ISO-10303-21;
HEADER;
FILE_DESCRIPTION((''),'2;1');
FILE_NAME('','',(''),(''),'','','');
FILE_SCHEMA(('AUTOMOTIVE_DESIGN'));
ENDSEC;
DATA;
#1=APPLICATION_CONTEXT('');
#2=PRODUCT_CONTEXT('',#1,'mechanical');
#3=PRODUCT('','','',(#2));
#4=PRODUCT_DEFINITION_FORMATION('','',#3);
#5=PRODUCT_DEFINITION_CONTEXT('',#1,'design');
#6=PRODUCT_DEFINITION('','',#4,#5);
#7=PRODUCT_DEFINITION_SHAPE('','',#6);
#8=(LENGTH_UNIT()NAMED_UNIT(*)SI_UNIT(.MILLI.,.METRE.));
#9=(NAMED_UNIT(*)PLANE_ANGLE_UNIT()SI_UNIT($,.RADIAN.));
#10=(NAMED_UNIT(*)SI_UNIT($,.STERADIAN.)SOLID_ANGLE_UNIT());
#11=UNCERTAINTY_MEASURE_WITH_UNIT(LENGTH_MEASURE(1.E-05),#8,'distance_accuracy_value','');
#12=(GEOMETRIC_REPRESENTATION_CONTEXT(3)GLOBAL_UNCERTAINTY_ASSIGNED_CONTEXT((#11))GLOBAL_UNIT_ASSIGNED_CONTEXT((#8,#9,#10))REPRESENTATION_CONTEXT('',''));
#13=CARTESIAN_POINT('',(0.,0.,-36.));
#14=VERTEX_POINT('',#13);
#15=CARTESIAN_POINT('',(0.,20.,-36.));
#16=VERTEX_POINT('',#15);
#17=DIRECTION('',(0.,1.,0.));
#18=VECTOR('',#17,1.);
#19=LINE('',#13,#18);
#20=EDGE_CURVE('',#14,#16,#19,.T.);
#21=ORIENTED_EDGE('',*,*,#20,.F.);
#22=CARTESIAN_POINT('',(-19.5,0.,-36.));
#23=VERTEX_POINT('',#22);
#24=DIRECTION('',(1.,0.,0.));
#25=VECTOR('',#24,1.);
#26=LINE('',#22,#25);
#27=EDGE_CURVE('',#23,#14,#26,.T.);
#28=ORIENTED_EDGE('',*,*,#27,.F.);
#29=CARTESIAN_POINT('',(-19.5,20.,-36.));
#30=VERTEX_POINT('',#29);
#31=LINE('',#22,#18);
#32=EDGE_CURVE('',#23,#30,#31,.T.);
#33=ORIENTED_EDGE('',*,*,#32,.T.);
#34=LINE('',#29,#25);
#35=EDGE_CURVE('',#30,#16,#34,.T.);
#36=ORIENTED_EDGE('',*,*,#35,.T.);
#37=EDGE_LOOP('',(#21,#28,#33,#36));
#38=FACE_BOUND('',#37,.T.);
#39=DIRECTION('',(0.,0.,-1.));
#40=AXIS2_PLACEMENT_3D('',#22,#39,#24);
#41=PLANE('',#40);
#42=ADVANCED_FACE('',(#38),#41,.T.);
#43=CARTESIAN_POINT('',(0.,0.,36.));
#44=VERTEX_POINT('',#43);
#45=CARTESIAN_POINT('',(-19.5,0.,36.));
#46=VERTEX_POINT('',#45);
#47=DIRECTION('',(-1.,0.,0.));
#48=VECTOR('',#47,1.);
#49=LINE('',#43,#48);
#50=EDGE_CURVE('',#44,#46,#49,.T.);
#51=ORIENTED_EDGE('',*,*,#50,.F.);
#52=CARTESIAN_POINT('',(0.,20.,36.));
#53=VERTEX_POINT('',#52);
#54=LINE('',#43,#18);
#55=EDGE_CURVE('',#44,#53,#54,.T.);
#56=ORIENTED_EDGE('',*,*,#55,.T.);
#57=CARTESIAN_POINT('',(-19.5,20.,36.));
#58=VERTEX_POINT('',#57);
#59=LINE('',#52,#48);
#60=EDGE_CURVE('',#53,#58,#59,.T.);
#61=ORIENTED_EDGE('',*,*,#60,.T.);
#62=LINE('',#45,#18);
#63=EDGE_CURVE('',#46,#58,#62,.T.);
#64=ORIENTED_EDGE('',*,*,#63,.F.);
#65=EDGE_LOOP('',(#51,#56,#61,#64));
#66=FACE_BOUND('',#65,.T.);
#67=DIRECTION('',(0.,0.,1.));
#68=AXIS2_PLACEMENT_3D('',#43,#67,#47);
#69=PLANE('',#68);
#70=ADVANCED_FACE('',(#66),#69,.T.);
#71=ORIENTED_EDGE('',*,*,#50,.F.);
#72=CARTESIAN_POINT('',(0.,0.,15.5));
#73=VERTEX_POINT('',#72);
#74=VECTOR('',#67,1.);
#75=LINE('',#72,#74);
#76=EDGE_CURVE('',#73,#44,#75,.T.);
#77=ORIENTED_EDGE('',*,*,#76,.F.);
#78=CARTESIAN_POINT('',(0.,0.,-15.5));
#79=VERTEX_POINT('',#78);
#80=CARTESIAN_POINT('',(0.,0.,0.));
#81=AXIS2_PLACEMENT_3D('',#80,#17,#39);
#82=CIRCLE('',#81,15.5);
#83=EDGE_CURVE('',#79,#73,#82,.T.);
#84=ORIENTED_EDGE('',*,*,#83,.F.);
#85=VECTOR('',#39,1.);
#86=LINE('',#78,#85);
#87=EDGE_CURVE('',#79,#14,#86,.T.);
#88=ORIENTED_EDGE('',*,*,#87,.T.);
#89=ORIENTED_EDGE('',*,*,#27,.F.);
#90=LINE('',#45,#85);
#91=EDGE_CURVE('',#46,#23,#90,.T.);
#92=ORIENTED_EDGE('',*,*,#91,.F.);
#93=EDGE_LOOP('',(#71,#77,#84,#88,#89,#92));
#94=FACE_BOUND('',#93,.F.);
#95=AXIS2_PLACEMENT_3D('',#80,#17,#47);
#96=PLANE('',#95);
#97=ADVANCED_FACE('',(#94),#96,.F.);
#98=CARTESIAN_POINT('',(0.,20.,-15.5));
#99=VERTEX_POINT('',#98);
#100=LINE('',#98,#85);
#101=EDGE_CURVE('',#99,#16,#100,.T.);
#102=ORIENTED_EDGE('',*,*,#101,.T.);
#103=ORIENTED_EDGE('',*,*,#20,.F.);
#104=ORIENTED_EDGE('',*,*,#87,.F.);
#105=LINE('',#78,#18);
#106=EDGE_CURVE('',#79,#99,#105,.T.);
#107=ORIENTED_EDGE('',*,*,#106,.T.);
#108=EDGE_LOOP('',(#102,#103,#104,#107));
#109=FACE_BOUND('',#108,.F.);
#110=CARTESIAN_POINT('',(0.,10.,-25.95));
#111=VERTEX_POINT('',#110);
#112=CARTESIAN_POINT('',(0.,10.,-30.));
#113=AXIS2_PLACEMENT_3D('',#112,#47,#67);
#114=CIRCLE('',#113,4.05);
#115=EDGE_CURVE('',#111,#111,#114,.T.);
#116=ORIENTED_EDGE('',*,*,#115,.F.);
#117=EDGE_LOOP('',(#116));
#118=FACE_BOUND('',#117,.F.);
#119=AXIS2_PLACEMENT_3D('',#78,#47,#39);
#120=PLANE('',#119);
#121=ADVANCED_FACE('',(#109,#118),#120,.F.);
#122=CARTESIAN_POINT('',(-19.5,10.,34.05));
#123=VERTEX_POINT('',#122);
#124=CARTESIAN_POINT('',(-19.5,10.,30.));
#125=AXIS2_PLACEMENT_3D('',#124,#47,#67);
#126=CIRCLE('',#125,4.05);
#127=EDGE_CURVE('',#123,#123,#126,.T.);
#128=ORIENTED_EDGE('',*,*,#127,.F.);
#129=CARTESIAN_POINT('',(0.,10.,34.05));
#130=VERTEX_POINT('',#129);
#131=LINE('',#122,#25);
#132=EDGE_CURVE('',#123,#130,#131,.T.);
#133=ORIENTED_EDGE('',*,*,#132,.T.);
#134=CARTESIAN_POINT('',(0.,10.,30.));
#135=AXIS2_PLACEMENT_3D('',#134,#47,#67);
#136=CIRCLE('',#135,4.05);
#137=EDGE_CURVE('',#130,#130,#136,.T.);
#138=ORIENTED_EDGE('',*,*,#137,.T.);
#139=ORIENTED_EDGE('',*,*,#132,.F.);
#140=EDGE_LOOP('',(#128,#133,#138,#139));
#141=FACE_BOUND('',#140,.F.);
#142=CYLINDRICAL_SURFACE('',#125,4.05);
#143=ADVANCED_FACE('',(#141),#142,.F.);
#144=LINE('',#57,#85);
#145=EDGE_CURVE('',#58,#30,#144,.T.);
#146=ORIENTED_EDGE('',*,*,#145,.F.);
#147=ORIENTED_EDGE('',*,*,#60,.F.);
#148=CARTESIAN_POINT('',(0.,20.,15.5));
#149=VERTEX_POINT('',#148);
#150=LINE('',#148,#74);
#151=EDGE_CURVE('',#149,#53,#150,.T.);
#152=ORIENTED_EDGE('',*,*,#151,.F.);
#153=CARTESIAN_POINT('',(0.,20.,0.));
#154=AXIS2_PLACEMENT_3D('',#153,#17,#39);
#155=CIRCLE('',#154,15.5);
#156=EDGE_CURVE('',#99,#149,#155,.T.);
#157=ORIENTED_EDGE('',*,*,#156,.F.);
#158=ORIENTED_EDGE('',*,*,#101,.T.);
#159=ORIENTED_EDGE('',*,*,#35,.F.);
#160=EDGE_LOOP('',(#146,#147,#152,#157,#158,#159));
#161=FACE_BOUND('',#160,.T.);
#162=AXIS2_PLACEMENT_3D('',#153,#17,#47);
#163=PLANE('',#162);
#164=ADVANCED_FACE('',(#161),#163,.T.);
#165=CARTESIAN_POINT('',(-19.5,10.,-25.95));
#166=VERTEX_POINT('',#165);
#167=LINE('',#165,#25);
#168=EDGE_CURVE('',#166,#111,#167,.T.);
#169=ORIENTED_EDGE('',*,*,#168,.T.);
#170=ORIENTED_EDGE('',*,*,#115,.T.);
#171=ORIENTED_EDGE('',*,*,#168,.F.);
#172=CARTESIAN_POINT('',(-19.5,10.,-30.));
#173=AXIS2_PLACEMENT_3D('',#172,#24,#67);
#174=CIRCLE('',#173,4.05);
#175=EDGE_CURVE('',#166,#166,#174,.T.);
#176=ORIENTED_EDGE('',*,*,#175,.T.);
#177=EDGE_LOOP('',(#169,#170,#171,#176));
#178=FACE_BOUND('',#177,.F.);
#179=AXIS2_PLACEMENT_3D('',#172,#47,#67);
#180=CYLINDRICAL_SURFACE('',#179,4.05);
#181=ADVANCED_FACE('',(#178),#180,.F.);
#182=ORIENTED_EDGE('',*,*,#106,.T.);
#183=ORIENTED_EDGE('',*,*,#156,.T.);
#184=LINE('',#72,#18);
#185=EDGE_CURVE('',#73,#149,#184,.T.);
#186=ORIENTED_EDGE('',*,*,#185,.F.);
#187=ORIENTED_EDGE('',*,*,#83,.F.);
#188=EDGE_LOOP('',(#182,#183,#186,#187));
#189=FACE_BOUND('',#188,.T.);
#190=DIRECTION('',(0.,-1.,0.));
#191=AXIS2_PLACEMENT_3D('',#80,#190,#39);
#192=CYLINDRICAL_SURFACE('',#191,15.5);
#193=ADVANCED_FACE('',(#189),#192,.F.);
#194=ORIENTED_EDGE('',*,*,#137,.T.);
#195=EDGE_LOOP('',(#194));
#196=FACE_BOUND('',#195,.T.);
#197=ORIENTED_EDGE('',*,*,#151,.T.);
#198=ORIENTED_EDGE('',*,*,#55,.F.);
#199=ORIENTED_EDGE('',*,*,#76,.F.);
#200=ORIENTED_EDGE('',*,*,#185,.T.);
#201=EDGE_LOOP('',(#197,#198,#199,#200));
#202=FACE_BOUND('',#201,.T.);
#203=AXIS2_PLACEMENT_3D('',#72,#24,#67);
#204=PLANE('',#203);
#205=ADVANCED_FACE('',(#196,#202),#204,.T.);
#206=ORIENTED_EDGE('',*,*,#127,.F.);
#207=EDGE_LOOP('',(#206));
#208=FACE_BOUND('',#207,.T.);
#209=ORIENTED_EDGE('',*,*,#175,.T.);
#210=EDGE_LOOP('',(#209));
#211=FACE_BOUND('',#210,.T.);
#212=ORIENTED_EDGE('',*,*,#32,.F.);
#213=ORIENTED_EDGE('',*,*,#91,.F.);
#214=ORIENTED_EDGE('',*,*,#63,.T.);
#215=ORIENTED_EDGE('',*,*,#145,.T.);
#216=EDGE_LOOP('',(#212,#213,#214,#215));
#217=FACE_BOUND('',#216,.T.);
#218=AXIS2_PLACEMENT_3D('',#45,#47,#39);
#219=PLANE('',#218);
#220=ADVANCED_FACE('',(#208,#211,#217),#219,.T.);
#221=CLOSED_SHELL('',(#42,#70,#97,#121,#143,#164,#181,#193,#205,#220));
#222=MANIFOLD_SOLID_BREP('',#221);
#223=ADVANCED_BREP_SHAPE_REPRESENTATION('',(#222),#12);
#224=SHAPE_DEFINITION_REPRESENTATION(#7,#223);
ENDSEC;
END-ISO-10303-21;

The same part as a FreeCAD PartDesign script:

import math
import FreeCAD as App
import Part
import Sketcher

doc = App.newDocument("Part")
body = doc.addObject("PartDesign::Body", "Body")

# Sketch on XZ plane
sketch1 = body.newObject("Sketcher::SketchObject", "Sketch")
sketch1.AttachmentSupport = (doc.getObject("XZ_Plane"), [""])
sketch1.MapMode = "FlatFace"
sketch1.addGeometry(Part.ArcOfCircle(Part.Circle(App.Vector(0, 0, 0), App.Vector(0, 0, 1), 16), math.radians(90), math.radians(270)), False)
sketch1.addGeometry(Part.LineSegment(App.Vector(0, -16, 0), App.Vector(0, -36, 0)), False)
sketch1.addGeometry(Part.LineSegment(App.Vector(0, -36, 0), App.Vector(-20, -36, 0)), False)
sketch1.addGeometry(Part.LineSegment(App.Vector(-20, -36, 0), App.Vector(-20, 36, 0)), False)
sketch1.addGeometry(Part.LineSegment(App.Vector(-20, 36, 0), App.Vector(0, 36, 0)), False)
sketch1.addGeometry(Part.LineSegment(App.Vector(0, 36, 0), App.Vector(0, 16, 0)), False)
sketch1.addConstraint(Sketcher.Constraint("Coincident", 0, 2, 1, 1))
sketch1.addConstraint(Sketcher.Constraint("Coincident", 1, 2, 2, 1))
sketch1.addConstraint(Sketcher.Constraint("Coincident", 2, 2, 3, 1))
sketch1.addConstraint(Sketcher.Constraint("Coincident", 3, 2, 4, 1))
sketch1.addConstraint(Sketcher.Constraint("Coincident", 4, 2, 5, 1))
sketch1.addConstraint(Sketcher.Constraint("Coincident", 5, 2, 0, 1))
sketch1.addConstraint(Sketcher.Constraint("Vertical", 1))
sketch1.addConstraint(Sketcher.Constraint("Horizontal", 2))
sketch1.addConstraint(Sketcher.Constraint("Vertical", 3))
sketch1.addConstraint(Sketcher.Constraint("Horizontal", 4))
sketch1.addConstraint(Sketcher.Constraint("Vertical", 5))
sketch1.addConstraint(Sketcher.Constraint("Coincident", 0, 3, -1, 1))
sketch1.addConstraint(Sketcher.Constraint("Symmetric", 1, 2, 4, 2, -1, 1))
sketch1.addConstraint(Sketcher.Constraint("PointOnObject", 0, 2, -2))
sketch1.addConstraint(Sketcher.Constraint("Radius", 0, 15.5))
sketch1.addConstraint(Sketcher.Constraint("DistanceY", 1, 2, 1, 1, 20.5))
sketch1.addConstraint(Sketcher.Constraint("DistanceX", 2, 2, 2, 1, 19.5))
pad1 = body.newObject("PartDesign::Pad", "Pad")
pad1.Profile = sketch1
pad1.Length = 20
pad1.Reversed = True

# Sketch on YZ plane
sketch2 = body.newObject("Sketcher::SketchObject", "Sketch001")
sketch2.AttachmentSupport = (doc.getObject("YZ_Plane"), [""])
sketch2.MapMode = "FlatFace"
sketch2.AttachmentOffset = App.Placement(App.Vector(0, 0, -19.5), App.Rotation())
sketch2.addGeometry(Part.Circle(App.Vector(10, -30, 0), App.Vector(0, 0, 1), 4), False)
sketch2.addGeometry(Part.Circle(App.Vector(10, 30, 0), App.Vector(0, 0, 1), 4), False)
sketch2.addConstraint(Sketcher.Constraint("Equal", 0, 1))
sketch2.addConstraint(Sketcher.Constraint("Symmetric", 0, 3, 1, 3, -1))
sketch2.addConstraint(Sketcher.Constraint("Diameter", 0, 8.1))
sketch2.addConstraint(Sketcher.Constraint("DistanceX", -1, 1, 0, 3, 10.0))
sketch2.addConstraint(Sketcher.Constraint("DistanceY", 0, 3, -1, 1, 30.0))
pocket1 = body.newObject("PartDesign::Pocket", "Pocket")
pocket1.Profile = sketch2
pocket1.Length = 20
pocket1.Reversed = True

doc.recompute()
